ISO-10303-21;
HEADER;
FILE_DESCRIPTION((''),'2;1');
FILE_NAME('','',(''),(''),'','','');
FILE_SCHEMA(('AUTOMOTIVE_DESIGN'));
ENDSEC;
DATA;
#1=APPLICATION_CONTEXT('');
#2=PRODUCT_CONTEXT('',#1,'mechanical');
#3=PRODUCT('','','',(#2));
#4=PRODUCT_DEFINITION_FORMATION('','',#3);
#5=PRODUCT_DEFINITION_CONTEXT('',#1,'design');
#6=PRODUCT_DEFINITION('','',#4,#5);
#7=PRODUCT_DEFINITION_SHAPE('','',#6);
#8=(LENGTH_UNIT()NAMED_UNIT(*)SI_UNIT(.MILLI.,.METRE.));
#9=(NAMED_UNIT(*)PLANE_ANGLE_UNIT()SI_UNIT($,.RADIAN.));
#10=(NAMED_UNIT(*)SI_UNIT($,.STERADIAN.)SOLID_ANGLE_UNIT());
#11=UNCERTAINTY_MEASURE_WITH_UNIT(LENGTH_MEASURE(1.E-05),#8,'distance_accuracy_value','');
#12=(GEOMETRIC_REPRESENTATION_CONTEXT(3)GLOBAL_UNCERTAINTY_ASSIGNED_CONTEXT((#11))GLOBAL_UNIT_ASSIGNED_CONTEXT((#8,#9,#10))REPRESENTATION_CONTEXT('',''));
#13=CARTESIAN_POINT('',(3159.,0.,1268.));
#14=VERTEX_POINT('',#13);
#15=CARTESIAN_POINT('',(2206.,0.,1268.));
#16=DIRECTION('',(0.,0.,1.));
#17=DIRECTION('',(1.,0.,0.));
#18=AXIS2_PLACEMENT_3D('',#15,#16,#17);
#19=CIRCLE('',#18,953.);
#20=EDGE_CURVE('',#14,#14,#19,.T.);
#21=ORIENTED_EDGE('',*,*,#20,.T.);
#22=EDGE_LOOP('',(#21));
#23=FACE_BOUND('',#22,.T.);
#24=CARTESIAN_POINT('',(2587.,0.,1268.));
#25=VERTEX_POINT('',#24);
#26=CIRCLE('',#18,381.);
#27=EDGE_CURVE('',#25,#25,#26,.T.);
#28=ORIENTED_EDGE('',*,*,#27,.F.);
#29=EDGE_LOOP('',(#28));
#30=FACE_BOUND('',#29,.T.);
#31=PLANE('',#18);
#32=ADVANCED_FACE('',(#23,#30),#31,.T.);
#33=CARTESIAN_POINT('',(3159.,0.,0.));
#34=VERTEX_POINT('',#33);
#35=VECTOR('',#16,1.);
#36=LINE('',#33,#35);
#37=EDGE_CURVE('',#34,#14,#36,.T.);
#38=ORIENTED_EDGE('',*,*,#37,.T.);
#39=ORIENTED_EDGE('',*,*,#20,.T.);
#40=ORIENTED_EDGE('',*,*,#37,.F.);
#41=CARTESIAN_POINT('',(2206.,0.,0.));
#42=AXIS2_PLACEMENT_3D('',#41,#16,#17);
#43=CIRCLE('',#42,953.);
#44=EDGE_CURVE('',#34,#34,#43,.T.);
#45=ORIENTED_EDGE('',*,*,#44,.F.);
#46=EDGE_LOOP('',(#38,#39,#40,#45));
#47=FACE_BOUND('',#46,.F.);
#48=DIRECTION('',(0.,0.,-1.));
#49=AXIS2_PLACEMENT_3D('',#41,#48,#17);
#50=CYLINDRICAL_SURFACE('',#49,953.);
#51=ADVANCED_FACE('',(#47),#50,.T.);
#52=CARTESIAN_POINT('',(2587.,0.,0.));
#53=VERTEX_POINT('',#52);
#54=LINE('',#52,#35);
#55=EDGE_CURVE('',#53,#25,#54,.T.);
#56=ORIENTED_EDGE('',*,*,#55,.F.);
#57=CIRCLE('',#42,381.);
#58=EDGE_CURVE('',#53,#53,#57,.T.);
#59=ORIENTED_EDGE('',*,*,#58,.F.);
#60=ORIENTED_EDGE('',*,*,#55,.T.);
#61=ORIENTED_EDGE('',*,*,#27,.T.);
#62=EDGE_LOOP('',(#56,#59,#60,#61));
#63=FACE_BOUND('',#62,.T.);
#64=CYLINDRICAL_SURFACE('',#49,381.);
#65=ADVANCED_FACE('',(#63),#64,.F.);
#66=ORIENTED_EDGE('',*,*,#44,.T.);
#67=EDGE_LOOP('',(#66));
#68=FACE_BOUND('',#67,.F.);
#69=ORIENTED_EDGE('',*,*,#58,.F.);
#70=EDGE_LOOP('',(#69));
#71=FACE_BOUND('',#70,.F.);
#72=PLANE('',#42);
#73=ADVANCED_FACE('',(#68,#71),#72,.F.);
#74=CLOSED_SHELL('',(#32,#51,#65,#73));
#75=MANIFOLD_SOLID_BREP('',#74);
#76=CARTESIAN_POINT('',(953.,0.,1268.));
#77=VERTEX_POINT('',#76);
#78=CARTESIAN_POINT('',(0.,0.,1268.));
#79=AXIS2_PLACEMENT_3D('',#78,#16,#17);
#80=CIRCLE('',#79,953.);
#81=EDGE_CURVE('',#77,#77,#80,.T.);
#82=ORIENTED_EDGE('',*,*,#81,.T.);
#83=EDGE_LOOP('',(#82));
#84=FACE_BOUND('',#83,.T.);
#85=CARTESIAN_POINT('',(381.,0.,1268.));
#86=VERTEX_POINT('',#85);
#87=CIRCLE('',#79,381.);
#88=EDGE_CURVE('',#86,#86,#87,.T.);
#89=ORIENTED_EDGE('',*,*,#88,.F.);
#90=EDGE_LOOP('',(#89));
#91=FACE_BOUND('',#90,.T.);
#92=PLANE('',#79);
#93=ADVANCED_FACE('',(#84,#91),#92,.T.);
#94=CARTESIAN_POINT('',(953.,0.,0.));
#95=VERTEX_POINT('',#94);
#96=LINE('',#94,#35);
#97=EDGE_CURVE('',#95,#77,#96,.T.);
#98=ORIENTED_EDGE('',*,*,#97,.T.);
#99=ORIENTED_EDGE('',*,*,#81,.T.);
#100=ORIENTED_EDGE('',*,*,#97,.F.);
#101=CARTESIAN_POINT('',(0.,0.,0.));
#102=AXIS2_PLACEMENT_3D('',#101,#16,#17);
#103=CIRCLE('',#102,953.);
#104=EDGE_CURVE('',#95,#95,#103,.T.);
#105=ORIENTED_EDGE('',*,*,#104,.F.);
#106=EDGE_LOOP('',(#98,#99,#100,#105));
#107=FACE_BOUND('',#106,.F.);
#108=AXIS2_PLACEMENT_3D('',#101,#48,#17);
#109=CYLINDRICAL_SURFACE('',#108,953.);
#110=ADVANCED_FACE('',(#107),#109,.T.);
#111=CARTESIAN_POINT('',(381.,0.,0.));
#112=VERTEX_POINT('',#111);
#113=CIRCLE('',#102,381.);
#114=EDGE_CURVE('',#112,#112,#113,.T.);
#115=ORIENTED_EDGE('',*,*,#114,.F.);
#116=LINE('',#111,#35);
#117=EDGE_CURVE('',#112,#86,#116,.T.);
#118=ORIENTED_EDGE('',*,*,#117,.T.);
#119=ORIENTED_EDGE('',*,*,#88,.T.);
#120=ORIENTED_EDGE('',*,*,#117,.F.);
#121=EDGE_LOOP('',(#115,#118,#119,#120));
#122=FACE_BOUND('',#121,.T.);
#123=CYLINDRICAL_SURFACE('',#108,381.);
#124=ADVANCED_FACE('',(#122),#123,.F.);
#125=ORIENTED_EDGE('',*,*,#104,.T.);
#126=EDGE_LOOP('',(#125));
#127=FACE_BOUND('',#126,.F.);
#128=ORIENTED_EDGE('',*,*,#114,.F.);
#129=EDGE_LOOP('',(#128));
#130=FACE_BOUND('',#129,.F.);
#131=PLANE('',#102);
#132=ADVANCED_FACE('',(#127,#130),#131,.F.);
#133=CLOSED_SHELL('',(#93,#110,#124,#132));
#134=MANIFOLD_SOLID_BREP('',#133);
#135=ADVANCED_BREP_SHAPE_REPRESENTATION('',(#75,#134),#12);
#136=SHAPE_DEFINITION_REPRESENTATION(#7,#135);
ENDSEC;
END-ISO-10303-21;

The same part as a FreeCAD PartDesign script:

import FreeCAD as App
import Part
import Sketcher
from FreeCAD import Vector
Q = App.Units.Quantity

doc = App.newDocument("Part")
params = doc.addObject("Spreadsheet::Sheet", "Params")
for row, (alias, value) in enumerate([
    ("sketch1_diameter", "1906 mm"),
    ("sketch1_diameter2", "762 mm"),
    ("pad1_length", "1268 mm"),
    ("sketch2_diameter", "1906 mm"),
    ("sketch2_diameter2", "762 mm"),
    ("pad2_length", "1268 mm"),
], start=1):
    params.set(f"A{row}", alias)
    params.set(f"B{row}", "=" + value)
    params.setAlias(f"B{row}", alias)

body = doc.addObject("PartDesign::Body", "Body")

# Sketch on XY plane
sketch1 = doc.addObject("Sketcher::SketchObject", "Sketch")
body.addObject(sketch1)
sketch1.AttachmentSupport = (doc.XY_Plane, [""])
sketch1.MapMode = "FlatFace"
sketch1.addGeometry(Part.Circle(Vector(2206, 0, 0), Vector(0, 0, 1), 953), False)
sketch1.addGeometry(Part.Circle(Vector(2206, 0, 0), Vector(0, 0, 1), 381), False)
sketch1.addConstraint(Sketcher.Constraint("Coincident", 1, 3, 0, 3))
sketch1.addConstraint(Sketcher.Constraint("PointOnObject", 0, 3, -1))
sketch1.addConstraint(Sketcher.Constraint("Diameter", 0, Q("1906 mm")))
sketch1.addConstraint(Sketcher.Constraint("Diameter", 1, Q("762 mm")))
sketch1.addConstraint(Sketcher.Constraint("DistanceX", -1, 1, 0, 3, Q("2206 mm")))
sketch1.setExpression("Constraints[2]", "Params.sketch1_diameter")
sketch1.setExpression("Constraints[3]", "Params.sketch1_diameter2")
pad1 = doc.addObject("PartDesign::Pad", "Pad")
body.addObject(pad1)
pad1.Profile = sketch1
pad1.setExpression("Length", "Params.pad1_length")
body2 = doc.addObject("PartDesign::Body", "Body001")

# Sketch on XY plane
sketch2 = doc.addObject("Sketcher::SketchObject", "Sketch001")
body2.addObject(sketch2)
sketch2.AttachmentSupport = (doc.getObject("XY_Plane001"), [""])
sketch2.MapMode = "FlatFace"
sketch2.addGeometry(Part.Circle(Vector(0, 0, 0), Vector(0, 0, 1), 953), False)
sketch2.addGeometry(Part.Circle(Vector(0, 0, 0), Vector(0, 0, 1), 381), False)
sketch2.addConstraint(Sketcher.Constraint("Coincident", 0, 3, -1, 1))
sketch2.addConstraint(Sketcher.Constraint("Coincident", 1, 3, -1, 1))
sketch2.addConstraint(Sketcher.Constraint("Diameter", 0, Q("1906 mm")))
sketch2.addConstraint(Sketcher.Constraint("Diameter", 1, Q("762 mm")))
sketch2.setExpression("Constraints[2]", "Params.sketch2_diameter")
sketch2.setExpression("Constraints[3]", "Params.sketch2_diameter2")
pad2 = doc.addObject("PartDesign::Pad", "Pad001")
body2.addObject(pad2)
pad2.Profile = sketch2
pad2.setExpression("Length", "Params.pad2_length")

doc.recompute()
